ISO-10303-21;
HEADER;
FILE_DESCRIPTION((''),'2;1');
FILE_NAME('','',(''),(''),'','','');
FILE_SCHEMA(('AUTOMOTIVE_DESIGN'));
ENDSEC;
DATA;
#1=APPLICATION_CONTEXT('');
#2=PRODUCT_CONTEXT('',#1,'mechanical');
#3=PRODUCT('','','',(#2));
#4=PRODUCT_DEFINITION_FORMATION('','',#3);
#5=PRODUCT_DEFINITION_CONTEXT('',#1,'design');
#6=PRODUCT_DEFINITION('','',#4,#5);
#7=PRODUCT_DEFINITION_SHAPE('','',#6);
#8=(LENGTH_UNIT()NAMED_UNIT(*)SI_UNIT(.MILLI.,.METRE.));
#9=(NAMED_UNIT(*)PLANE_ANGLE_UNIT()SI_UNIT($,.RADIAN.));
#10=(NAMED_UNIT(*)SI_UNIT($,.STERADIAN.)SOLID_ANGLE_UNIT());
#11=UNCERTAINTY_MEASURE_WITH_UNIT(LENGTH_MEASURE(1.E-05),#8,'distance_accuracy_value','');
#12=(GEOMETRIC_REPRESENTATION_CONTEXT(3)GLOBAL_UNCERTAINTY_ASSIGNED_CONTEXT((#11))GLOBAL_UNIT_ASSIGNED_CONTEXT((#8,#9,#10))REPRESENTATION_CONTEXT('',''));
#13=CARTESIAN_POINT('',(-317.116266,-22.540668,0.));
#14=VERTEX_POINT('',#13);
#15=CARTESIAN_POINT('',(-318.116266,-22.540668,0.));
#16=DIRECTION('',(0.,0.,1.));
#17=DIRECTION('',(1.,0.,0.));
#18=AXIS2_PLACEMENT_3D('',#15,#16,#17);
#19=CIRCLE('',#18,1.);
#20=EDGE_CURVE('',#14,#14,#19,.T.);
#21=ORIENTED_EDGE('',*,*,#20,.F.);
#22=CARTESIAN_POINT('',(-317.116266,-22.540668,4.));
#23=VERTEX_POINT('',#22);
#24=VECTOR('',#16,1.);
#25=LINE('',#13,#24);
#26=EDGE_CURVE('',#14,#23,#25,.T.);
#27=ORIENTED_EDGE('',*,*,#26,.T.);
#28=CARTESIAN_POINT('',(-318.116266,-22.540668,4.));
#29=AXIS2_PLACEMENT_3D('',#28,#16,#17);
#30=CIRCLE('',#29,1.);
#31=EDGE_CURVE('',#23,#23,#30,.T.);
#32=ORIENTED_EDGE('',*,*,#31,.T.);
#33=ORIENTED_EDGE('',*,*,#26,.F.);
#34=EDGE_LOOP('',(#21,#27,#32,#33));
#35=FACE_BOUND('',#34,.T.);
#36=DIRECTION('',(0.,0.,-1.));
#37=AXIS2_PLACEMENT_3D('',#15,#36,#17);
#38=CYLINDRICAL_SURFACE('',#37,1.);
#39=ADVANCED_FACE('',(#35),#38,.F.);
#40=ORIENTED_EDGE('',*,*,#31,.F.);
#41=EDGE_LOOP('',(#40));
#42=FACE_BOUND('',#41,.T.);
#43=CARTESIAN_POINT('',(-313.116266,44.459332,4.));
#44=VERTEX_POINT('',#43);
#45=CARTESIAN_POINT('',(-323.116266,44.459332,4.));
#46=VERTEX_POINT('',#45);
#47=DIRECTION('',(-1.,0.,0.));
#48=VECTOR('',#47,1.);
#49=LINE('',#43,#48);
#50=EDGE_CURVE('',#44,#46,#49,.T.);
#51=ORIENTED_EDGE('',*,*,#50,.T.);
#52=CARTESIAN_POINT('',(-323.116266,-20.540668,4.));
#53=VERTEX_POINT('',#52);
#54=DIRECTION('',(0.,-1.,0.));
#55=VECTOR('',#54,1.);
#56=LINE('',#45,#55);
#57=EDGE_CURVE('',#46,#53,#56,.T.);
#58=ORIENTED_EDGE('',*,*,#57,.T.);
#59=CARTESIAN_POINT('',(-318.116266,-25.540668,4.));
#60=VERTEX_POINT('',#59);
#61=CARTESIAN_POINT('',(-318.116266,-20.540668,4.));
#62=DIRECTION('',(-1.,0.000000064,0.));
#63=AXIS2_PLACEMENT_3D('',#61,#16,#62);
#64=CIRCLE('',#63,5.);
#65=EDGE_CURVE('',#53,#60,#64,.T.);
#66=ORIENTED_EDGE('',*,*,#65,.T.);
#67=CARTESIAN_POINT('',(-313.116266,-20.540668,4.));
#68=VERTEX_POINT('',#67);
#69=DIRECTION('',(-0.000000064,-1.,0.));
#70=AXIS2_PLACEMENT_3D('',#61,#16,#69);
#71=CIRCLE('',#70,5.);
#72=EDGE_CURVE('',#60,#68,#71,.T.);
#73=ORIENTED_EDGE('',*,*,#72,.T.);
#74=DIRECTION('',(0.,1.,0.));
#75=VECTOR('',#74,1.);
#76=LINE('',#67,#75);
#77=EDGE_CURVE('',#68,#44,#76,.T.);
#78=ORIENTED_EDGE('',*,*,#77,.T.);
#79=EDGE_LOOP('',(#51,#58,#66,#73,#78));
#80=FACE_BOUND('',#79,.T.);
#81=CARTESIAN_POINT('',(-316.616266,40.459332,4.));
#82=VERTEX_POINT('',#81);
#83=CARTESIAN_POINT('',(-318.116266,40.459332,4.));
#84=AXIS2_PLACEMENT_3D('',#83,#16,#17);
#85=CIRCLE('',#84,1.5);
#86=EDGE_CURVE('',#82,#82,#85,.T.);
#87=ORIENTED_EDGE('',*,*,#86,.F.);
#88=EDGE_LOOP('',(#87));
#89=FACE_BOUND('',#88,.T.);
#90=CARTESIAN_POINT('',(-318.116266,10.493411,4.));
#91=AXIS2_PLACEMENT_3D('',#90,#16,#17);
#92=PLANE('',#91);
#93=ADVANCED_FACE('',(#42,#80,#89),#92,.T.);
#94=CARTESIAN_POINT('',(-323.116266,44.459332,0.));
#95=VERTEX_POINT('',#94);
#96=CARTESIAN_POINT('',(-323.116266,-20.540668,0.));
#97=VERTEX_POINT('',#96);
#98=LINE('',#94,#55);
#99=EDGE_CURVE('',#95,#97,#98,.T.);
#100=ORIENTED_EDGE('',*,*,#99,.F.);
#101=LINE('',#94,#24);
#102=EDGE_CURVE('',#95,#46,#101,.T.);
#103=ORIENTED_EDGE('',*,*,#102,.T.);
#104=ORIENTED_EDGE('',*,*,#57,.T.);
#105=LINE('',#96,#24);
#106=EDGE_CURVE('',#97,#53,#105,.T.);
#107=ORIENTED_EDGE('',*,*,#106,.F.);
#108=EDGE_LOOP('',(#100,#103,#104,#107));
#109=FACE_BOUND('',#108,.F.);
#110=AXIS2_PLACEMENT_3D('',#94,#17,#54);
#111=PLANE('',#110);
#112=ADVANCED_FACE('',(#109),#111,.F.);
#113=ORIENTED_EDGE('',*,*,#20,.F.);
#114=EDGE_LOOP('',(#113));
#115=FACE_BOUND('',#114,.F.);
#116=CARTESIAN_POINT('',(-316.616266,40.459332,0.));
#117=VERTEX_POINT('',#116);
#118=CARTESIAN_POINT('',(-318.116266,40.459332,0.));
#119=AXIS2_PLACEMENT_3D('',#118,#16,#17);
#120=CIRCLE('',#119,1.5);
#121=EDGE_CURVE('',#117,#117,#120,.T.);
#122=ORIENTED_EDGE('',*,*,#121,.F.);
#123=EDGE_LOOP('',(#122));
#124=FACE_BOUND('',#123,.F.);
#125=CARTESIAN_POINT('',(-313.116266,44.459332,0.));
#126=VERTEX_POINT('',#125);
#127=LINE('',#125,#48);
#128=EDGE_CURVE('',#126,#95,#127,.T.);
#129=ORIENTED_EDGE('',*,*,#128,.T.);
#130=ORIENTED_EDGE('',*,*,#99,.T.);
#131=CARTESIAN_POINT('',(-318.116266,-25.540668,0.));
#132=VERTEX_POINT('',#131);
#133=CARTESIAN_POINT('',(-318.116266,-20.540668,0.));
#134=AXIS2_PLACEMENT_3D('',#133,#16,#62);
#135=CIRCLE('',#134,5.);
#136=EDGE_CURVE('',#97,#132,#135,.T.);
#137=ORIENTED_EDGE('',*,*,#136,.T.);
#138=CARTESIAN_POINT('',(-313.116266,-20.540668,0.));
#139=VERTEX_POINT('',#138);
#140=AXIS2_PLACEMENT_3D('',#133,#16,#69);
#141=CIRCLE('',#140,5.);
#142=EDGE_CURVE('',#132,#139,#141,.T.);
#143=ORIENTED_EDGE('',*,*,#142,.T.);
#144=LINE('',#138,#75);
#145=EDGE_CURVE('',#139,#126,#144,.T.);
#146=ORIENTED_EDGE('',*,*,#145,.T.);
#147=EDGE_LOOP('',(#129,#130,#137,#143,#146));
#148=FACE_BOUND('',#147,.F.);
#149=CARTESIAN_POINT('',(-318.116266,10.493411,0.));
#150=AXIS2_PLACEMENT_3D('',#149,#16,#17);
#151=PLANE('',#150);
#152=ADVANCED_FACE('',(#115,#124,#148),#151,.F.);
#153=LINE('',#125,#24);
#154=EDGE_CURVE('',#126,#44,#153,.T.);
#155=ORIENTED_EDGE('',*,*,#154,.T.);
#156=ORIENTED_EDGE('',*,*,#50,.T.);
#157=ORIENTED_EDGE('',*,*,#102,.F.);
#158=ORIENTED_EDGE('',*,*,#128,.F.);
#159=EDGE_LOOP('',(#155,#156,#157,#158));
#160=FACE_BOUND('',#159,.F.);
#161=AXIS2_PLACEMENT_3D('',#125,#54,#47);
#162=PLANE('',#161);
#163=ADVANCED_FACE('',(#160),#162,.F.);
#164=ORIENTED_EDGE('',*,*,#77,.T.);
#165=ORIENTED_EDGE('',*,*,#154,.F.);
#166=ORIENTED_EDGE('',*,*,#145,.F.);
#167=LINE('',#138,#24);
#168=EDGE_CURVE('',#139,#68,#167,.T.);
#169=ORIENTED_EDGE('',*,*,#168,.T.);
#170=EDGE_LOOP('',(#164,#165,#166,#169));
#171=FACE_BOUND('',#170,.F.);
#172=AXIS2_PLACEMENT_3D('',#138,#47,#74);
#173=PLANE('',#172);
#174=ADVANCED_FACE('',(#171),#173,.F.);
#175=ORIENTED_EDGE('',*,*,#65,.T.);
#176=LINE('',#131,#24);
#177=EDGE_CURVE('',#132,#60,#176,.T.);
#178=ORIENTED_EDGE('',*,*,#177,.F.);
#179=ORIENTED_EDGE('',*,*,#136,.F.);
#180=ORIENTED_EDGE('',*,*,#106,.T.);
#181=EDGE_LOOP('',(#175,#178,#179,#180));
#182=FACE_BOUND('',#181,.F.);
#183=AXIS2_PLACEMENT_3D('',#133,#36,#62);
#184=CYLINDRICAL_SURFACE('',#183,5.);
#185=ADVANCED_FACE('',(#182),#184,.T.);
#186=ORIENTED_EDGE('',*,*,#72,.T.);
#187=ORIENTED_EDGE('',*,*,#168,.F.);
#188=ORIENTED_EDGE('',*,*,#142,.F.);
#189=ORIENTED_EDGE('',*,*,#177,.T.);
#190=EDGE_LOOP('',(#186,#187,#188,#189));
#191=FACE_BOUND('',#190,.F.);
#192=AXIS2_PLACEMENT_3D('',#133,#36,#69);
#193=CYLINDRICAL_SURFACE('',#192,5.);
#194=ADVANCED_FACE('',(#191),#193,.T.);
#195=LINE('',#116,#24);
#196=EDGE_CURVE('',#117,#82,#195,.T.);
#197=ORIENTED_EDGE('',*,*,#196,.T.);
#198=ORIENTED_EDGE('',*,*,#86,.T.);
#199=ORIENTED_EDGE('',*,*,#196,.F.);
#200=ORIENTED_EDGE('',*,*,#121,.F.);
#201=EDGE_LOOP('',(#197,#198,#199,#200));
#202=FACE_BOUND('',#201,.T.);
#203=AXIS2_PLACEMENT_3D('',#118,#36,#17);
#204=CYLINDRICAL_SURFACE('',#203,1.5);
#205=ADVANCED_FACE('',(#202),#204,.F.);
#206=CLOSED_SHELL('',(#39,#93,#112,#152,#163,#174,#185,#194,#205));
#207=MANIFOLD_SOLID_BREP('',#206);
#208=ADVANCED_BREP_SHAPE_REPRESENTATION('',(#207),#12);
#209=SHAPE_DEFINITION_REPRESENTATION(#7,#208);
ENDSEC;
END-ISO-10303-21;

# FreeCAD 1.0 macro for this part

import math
import FreeCAD as App
import Part
import Sketcher

V = App.Vector

doc = App.newDocument("Part")
body = doc.addObject("PartDesign::Body", "Body")

# Sketch on XY plane
sketch1 = body.newObject("Sketcher::SketchObject", "Sketch")
sketch1.AttachmentSupport = (doc.getObject("XY_Plane"), [""])
sketch1.MapMode = "FlatFace"
sketch1.addGeometry(Part.LineSegment(V(-313.1, 44.5, 0), V(-323.1, 44.5, 0)), False)
sketch1.addGeometry(Part.LineSegment(V(-323.1, 44.5, 0), V(-323.1, -20.5, 0)), False)
sketch1.addGeometry(Part.ArcOfCircle(Part.Circle(V(-318.1, -20.5, 0), V(0, 0, 1), 5), math.radians(180), math.radians(270)), False)
sketch1.addGeometry(Part.ArcOfCircle(Part.Circle(V(-318.1, -20.5, 0), V(0, 0, 1), 5), math.radians(-90), math.radians(0)), False)
sketch1.addGeometry(Part.LineSegment(V(-313.1, -20.5, 0), V(-313.1, 44.5, 0)), False)
sketch1.addGeometry(Part.Circle(V(-318.1, -22.5, 0), V(0, 0, 1), 1), False)
sketch1.addGeometry(Part.Circle(V(-318.1, 40.5, 0), V(0, 0, 1), 1.5), False)
sketch1.addConstraint(Sketcher.Constraint("Coincident", 0, 2, 1, 1))
sketch1.addConstraint(Sketcher.Constraint("Tangent", 1, 2, 2, 1))
sketch1.addConstraint(Sketcher.Constraint("Tangent", 2, 2, 3, 1))
sketch1.addConstraint(Sketcher.Constraint("Tangent", 3, 2, 4, 1))
sketch1.addConstraint(Sketcher.Constraint("Coincident", 4, 2, 0, 1))
sketch1.addConstraint(Sketcher.Constraint("Horizontal", 0))
sketch1.addConstraint(Sketcher.Constraint("Vertical", 1))
sketch1.addConstraint(Sketcher.Constraint("Vertical", 4))
sketch1.addConstraint(Sketcher.Constraint("Equal", 2, 3))
sketch1.addConstraint(Sketcher.Constraint("Vertical", 3, 3, 5, 3))
sketch1.addConstraint(Sketcher.Constraint("Vertical", 5, 3, 6, 3))
sketch1.addConstraint(Sketcher.Constraint("Vertical", 6, 3, 2, 2))
sketch1.addConstraint(Sketcher.Constraint("Diameter", 5, 2.0))
sketch1.addConstraint(Sketcher.Constraint("Diameter", 6, 3.0))
sketch1.addConstraint(Sketcher.Constraint("Radius", 2, 5.0))
sketch1.addConstraint(Sketcher.Constraint("DistanceY", 1, 2, 1, 1, 65.0))
sketch1.addConstraint(Sketcher.Constraint("DistanceY", 5, 3, 2, 3, 2.0))
sketch1.addConstraint(Sketcher.Constraint("DistanceY", 2, 3, 6, 3, 61.0))
sketch1.addConstraint(Sketcher.Constraint("DistanceY", 2, 3, -1, 1, 20.540668))
sketch1.addConstraint(Sketcher.Constraint("DistanceX", 2, 3, -1, 1, 318.116266))
pad1 = body.newObject("PartDesign::Pad", "Pad")
pad1.Profile = sketch1
pad1.Length = 4

doc.recompute()
